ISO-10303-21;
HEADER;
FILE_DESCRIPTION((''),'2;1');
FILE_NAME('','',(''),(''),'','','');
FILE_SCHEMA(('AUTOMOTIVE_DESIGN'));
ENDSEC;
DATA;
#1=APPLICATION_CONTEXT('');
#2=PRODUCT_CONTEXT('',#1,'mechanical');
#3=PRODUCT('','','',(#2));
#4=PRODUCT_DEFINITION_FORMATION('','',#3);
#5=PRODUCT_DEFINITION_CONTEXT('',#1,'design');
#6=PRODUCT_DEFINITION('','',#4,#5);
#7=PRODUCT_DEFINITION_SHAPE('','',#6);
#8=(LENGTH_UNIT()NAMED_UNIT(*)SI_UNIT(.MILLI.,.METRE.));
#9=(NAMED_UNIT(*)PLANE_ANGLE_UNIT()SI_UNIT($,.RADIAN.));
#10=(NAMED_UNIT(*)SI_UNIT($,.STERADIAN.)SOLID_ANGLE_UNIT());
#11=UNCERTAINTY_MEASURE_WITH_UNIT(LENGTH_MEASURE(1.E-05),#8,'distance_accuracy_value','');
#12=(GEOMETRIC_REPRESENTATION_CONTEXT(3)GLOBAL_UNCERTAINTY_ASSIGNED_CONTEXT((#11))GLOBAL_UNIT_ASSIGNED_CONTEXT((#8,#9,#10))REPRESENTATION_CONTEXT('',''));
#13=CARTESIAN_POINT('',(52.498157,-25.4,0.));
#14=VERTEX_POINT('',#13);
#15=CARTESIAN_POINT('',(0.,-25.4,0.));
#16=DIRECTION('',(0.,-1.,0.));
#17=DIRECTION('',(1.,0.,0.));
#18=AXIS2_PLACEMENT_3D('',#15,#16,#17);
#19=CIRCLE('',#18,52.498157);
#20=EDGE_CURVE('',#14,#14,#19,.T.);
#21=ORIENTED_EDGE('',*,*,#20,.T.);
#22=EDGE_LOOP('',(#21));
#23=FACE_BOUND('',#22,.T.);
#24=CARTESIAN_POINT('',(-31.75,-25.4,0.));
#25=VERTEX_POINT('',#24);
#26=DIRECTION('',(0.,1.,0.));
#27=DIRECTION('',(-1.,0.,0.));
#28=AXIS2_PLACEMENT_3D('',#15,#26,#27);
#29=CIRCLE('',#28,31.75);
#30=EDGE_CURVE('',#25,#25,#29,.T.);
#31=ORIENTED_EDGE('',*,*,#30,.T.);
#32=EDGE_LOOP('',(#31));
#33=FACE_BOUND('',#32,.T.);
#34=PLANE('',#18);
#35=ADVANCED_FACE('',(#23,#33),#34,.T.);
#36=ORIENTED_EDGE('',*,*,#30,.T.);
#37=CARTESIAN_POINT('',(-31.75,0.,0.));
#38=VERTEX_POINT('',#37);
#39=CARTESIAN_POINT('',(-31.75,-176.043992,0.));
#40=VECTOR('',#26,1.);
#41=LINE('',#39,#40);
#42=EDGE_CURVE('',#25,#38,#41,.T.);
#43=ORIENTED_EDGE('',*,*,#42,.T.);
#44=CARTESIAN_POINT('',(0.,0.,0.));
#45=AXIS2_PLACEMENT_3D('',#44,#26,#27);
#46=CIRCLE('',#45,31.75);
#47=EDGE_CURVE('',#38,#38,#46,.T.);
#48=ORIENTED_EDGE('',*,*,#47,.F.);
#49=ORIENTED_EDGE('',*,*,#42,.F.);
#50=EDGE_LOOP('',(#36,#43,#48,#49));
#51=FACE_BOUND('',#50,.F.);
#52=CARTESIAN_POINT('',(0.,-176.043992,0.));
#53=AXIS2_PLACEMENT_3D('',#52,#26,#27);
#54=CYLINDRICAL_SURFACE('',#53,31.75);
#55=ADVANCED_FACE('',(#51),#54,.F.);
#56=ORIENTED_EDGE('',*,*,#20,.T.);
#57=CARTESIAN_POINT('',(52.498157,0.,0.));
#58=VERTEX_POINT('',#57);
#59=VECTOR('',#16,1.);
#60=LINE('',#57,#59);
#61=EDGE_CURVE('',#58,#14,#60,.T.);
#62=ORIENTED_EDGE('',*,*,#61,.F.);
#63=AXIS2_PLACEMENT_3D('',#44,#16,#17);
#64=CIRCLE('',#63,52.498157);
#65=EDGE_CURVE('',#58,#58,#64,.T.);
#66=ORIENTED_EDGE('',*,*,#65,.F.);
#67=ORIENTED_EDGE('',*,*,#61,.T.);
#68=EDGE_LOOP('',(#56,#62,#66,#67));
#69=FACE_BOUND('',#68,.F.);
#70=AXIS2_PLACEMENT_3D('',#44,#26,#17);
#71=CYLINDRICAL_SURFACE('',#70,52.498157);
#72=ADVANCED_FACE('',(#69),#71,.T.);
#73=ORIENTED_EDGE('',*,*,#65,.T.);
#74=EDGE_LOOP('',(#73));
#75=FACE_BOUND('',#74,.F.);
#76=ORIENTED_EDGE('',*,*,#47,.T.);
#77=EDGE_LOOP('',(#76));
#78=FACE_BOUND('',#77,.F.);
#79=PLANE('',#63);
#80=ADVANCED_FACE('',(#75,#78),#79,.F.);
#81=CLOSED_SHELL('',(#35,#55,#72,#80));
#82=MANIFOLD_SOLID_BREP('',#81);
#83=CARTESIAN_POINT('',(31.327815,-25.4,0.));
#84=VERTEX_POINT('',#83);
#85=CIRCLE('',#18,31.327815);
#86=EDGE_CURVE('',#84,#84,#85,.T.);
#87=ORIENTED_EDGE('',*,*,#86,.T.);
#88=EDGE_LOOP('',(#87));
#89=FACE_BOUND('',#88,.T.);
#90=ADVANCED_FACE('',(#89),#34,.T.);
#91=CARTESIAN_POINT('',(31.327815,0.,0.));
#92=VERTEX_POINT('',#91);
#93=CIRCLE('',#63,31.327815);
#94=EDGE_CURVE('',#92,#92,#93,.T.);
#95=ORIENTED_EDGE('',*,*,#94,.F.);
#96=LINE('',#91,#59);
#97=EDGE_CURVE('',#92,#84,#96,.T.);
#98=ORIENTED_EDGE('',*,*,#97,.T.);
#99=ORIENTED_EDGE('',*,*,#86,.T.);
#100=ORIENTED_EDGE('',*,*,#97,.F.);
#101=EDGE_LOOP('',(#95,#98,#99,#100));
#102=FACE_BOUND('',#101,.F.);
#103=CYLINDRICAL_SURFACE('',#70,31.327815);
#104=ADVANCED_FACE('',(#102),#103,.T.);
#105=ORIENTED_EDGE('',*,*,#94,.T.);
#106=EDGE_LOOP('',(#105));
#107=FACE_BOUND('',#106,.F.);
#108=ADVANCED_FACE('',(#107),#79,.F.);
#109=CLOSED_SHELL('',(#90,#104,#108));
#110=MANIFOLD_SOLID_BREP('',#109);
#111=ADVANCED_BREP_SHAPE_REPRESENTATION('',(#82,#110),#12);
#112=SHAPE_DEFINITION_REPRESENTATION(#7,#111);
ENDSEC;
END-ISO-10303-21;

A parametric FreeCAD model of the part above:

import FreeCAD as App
import Part
import Sketcher
Q = App.Units.Quantity

doc = App.newDocument("Part")
params = doc.addObject("Spreadsheet::Sheet", "Params")
for row, (alias, value) in enumerate([
    ("pad1_length", "1 in"),
    ("sketch2_diameter", "2.5 in"),
    ("hole_diameter", "2.5 in"),
    ("pocket1_length", "1 in"),
    ("pad2_length", "1 in"),
], start=1):
    params.set(f"A{row}", alias)
    params.set(f"B{row}", "=" + value)
    params.setAlias(f"B{row}", alias)

body = doc.addObject("PartDesign::Body", "Body")

sketch1 = body.newObject("Sketcher::SketchObject", "Sketch")
sketch1.AttachmentSupport = (doc.getObject("XZ_Plane"), [""])
sketch1.MapMode = "FlatFace"
sketch1.addGeometry(Part.Circle(App.Vector(0, 0, 0), App.Vector(0, 0, 1), 52), False)
sketch1.addConstraint([
    Sketcher.Constraint("Coincident", 0, 3, -1, 1),
    Sketcher.Constraint("Diameter", 0, Q("104.996315 mm")),
])
pad1 = body.newObject("PartDesign::Pad", "Pad")
pad1.Profile = sketch1
pad1.setExpression("Length", "Params.pad1_length")

sketch2 = body.newObject("Sketcher::SketchObject", "Sketch001")
sketch2.AttachmentSupport = (doc.getObject("XZ_Plane"), [""])
sketch2.MapMode = "FlatFace"
sketch2.AttachmentOffset = App.Placement(App.Vector(0, 0, 1 * 25.4), App.Rotation())
sketch2.addGeometry(Part.Circle(App.Vector(0, 0, 0), App.Vector(0, 0, 1), 32), False)
sketch2.addConstraint([
    Sketcher.Constraint("Coincident", 0, 3, -1, 1),
    Sketcher.Constraint("Diameter", 0, Q("2.5 in")),
])
sketch2.setExpression("Constraints[1]", "Params.sketch2_diameter")
doc.recompute()
hole = body.newObject("PartDesign::Hole", "Hole")
hole.Profile = sketch2
hole.ThreadType = "None"
hole.setExpression("Diameter", "Params.hole_diameter")
hole.DepthType = "ThroughAll"

sketch3 = body.newObject("Sketcher::SketchObject", "Sketch002")
sketch3.AttachmentSupport = (doc.getObject("XZ_Plane"), [""])
sketch3.MapMode = "FlatFace"
sketch3.addGeometry(Part.Circle(App.Vector(0, 0, 0), App.Vector(0, 0, 1), 20), False)
sketch3.addConstraint([
    Sketcher.Constraint("Coincident", 0, 3, -1, 1),
    Sketcher.Constraint("Diameter", 0, Q("39.992487 mm")),
])
pocket1 = body.newObject("PartDesign::Pocket", "Pocket")
pocket1.Profile = sketch3
pocket1.setExpression("Length", "Params.pocket1_length")
body2 = doc.addObject("PartDesign::Body", "Body001")

sketch4 = body2.newObject("Sketcher::SketchObject", "Sketch003")
sketch4.AttachmentSupport = (doc.getObject("XZ_Plane001"), [""])
sketch4.MapMode = "FlatFace"
sketch4.addGeometry(Part.Circle(App.Vector(0, 0, 0), App.Vector(0, 0, 1), 31), False)
sketch4.addConstraint([
    Sketcher.Constraint("Coincident", 0, 3, -1, 1),
    Sketcher.Constraint("Diameter", 0, Q("62.65563 mm")),
])
pad2 = body2.newObject("PartDesign::Pad", "Pad001")
pad2.Profile = sketch4
pad2.setExpression("Length", "Params.pad2_length")

doc.recompute()
